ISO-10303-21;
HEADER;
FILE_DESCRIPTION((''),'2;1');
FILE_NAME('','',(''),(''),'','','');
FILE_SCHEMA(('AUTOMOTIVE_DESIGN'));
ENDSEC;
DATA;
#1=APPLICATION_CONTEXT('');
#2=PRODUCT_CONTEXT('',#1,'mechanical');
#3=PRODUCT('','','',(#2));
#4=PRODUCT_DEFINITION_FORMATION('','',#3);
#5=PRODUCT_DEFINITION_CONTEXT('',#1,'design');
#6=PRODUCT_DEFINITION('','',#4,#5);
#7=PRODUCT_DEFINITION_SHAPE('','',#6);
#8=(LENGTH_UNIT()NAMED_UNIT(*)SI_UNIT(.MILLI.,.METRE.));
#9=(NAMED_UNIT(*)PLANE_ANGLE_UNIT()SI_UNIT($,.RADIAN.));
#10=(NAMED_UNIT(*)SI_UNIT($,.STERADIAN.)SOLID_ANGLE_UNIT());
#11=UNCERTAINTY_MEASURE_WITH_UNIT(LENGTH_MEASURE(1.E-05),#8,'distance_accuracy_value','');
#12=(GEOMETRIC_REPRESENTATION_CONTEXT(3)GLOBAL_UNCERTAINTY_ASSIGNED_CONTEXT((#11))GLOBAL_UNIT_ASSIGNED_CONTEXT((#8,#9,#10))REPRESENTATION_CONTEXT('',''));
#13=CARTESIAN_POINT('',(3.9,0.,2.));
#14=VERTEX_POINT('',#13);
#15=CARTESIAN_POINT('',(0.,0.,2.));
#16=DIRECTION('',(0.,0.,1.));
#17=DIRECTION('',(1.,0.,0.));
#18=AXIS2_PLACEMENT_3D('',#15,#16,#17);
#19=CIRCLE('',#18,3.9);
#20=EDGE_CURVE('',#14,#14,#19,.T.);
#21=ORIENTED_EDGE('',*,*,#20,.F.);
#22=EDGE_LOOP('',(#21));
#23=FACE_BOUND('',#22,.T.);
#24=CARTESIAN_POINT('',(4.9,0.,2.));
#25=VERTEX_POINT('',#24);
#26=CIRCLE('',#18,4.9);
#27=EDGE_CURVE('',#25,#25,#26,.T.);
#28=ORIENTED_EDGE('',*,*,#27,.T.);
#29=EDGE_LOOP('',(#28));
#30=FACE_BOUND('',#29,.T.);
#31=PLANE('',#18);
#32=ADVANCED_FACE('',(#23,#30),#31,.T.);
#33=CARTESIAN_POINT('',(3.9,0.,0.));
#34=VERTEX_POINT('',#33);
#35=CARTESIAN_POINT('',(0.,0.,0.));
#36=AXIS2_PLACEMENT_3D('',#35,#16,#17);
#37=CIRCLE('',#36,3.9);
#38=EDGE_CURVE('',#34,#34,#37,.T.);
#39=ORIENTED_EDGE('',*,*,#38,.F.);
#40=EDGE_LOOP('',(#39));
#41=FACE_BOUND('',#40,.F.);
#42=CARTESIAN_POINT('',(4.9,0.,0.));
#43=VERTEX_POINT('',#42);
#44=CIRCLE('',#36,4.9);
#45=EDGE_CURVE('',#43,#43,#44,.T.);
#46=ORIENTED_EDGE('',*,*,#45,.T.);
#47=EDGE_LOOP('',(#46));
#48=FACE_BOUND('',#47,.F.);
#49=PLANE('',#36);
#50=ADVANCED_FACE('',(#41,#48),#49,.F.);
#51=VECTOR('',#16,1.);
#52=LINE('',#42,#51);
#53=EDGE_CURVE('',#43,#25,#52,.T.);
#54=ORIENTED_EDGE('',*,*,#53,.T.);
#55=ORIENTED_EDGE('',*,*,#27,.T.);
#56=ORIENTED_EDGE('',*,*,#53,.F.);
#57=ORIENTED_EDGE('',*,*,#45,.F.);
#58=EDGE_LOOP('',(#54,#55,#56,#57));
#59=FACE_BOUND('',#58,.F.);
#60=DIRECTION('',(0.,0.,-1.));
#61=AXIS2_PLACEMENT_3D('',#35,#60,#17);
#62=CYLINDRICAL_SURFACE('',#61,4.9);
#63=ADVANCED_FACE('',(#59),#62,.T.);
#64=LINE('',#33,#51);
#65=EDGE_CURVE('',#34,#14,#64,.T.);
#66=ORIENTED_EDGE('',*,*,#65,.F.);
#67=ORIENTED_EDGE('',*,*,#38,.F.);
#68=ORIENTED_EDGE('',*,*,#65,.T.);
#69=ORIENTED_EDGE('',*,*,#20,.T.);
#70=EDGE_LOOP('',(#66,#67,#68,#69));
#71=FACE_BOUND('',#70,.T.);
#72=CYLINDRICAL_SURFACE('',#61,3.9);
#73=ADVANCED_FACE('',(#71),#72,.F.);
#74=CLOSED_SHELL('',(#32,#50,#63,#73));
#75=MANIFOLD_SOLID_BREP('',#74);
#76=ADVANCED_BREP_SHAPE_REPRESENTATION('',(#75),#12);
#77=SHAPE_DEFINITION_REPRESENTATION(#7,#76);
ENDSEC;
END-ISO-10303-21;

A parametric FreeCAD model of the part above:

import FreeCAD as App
import Part
import Sketcher

V = App.Vector
Q = App.Units.Quantity

doc = App.newDocument("Part")
body = doc.addObject("PartDesign::Body", "Body")

# Sketch on XY plane
sketch1 = body.newObject("Sketcher::SketchObject", "Sketch")
sketch1.AttachmentSupport = (doc.getObject("XY_Plane"), [""])
sketch1.MapMode = "FlatFace"
sketch1.addGeometry(Part.Circle(V(0, 0, 0), V(0, 0, 1), 4.9), False)
sketch1.addGeometry(Part.Circle(V(0, 0, 0), V(0, 0, 1), 3.9), False)
sketch1.addConstraint(Sketcher.Constraint("Coincident", 0, 3, -1, 1))
sketch1.addConstraint(Sketcher.Constraint("Coincident", 1, 3, -1, 1))
sketch1.addConstraint(Sketcher.Constraint("Diameter", 1, Q("7.8 mm")))
sketch1.addConstraint(Sketcher.Constraint("Diameter", 0, Q("9.8 mm")))
pad1 = body.newObject("PartDesign::Pad", "Pad")
pad1.Profile = sketch1
pad1.Length = 2

doc.recompute()
